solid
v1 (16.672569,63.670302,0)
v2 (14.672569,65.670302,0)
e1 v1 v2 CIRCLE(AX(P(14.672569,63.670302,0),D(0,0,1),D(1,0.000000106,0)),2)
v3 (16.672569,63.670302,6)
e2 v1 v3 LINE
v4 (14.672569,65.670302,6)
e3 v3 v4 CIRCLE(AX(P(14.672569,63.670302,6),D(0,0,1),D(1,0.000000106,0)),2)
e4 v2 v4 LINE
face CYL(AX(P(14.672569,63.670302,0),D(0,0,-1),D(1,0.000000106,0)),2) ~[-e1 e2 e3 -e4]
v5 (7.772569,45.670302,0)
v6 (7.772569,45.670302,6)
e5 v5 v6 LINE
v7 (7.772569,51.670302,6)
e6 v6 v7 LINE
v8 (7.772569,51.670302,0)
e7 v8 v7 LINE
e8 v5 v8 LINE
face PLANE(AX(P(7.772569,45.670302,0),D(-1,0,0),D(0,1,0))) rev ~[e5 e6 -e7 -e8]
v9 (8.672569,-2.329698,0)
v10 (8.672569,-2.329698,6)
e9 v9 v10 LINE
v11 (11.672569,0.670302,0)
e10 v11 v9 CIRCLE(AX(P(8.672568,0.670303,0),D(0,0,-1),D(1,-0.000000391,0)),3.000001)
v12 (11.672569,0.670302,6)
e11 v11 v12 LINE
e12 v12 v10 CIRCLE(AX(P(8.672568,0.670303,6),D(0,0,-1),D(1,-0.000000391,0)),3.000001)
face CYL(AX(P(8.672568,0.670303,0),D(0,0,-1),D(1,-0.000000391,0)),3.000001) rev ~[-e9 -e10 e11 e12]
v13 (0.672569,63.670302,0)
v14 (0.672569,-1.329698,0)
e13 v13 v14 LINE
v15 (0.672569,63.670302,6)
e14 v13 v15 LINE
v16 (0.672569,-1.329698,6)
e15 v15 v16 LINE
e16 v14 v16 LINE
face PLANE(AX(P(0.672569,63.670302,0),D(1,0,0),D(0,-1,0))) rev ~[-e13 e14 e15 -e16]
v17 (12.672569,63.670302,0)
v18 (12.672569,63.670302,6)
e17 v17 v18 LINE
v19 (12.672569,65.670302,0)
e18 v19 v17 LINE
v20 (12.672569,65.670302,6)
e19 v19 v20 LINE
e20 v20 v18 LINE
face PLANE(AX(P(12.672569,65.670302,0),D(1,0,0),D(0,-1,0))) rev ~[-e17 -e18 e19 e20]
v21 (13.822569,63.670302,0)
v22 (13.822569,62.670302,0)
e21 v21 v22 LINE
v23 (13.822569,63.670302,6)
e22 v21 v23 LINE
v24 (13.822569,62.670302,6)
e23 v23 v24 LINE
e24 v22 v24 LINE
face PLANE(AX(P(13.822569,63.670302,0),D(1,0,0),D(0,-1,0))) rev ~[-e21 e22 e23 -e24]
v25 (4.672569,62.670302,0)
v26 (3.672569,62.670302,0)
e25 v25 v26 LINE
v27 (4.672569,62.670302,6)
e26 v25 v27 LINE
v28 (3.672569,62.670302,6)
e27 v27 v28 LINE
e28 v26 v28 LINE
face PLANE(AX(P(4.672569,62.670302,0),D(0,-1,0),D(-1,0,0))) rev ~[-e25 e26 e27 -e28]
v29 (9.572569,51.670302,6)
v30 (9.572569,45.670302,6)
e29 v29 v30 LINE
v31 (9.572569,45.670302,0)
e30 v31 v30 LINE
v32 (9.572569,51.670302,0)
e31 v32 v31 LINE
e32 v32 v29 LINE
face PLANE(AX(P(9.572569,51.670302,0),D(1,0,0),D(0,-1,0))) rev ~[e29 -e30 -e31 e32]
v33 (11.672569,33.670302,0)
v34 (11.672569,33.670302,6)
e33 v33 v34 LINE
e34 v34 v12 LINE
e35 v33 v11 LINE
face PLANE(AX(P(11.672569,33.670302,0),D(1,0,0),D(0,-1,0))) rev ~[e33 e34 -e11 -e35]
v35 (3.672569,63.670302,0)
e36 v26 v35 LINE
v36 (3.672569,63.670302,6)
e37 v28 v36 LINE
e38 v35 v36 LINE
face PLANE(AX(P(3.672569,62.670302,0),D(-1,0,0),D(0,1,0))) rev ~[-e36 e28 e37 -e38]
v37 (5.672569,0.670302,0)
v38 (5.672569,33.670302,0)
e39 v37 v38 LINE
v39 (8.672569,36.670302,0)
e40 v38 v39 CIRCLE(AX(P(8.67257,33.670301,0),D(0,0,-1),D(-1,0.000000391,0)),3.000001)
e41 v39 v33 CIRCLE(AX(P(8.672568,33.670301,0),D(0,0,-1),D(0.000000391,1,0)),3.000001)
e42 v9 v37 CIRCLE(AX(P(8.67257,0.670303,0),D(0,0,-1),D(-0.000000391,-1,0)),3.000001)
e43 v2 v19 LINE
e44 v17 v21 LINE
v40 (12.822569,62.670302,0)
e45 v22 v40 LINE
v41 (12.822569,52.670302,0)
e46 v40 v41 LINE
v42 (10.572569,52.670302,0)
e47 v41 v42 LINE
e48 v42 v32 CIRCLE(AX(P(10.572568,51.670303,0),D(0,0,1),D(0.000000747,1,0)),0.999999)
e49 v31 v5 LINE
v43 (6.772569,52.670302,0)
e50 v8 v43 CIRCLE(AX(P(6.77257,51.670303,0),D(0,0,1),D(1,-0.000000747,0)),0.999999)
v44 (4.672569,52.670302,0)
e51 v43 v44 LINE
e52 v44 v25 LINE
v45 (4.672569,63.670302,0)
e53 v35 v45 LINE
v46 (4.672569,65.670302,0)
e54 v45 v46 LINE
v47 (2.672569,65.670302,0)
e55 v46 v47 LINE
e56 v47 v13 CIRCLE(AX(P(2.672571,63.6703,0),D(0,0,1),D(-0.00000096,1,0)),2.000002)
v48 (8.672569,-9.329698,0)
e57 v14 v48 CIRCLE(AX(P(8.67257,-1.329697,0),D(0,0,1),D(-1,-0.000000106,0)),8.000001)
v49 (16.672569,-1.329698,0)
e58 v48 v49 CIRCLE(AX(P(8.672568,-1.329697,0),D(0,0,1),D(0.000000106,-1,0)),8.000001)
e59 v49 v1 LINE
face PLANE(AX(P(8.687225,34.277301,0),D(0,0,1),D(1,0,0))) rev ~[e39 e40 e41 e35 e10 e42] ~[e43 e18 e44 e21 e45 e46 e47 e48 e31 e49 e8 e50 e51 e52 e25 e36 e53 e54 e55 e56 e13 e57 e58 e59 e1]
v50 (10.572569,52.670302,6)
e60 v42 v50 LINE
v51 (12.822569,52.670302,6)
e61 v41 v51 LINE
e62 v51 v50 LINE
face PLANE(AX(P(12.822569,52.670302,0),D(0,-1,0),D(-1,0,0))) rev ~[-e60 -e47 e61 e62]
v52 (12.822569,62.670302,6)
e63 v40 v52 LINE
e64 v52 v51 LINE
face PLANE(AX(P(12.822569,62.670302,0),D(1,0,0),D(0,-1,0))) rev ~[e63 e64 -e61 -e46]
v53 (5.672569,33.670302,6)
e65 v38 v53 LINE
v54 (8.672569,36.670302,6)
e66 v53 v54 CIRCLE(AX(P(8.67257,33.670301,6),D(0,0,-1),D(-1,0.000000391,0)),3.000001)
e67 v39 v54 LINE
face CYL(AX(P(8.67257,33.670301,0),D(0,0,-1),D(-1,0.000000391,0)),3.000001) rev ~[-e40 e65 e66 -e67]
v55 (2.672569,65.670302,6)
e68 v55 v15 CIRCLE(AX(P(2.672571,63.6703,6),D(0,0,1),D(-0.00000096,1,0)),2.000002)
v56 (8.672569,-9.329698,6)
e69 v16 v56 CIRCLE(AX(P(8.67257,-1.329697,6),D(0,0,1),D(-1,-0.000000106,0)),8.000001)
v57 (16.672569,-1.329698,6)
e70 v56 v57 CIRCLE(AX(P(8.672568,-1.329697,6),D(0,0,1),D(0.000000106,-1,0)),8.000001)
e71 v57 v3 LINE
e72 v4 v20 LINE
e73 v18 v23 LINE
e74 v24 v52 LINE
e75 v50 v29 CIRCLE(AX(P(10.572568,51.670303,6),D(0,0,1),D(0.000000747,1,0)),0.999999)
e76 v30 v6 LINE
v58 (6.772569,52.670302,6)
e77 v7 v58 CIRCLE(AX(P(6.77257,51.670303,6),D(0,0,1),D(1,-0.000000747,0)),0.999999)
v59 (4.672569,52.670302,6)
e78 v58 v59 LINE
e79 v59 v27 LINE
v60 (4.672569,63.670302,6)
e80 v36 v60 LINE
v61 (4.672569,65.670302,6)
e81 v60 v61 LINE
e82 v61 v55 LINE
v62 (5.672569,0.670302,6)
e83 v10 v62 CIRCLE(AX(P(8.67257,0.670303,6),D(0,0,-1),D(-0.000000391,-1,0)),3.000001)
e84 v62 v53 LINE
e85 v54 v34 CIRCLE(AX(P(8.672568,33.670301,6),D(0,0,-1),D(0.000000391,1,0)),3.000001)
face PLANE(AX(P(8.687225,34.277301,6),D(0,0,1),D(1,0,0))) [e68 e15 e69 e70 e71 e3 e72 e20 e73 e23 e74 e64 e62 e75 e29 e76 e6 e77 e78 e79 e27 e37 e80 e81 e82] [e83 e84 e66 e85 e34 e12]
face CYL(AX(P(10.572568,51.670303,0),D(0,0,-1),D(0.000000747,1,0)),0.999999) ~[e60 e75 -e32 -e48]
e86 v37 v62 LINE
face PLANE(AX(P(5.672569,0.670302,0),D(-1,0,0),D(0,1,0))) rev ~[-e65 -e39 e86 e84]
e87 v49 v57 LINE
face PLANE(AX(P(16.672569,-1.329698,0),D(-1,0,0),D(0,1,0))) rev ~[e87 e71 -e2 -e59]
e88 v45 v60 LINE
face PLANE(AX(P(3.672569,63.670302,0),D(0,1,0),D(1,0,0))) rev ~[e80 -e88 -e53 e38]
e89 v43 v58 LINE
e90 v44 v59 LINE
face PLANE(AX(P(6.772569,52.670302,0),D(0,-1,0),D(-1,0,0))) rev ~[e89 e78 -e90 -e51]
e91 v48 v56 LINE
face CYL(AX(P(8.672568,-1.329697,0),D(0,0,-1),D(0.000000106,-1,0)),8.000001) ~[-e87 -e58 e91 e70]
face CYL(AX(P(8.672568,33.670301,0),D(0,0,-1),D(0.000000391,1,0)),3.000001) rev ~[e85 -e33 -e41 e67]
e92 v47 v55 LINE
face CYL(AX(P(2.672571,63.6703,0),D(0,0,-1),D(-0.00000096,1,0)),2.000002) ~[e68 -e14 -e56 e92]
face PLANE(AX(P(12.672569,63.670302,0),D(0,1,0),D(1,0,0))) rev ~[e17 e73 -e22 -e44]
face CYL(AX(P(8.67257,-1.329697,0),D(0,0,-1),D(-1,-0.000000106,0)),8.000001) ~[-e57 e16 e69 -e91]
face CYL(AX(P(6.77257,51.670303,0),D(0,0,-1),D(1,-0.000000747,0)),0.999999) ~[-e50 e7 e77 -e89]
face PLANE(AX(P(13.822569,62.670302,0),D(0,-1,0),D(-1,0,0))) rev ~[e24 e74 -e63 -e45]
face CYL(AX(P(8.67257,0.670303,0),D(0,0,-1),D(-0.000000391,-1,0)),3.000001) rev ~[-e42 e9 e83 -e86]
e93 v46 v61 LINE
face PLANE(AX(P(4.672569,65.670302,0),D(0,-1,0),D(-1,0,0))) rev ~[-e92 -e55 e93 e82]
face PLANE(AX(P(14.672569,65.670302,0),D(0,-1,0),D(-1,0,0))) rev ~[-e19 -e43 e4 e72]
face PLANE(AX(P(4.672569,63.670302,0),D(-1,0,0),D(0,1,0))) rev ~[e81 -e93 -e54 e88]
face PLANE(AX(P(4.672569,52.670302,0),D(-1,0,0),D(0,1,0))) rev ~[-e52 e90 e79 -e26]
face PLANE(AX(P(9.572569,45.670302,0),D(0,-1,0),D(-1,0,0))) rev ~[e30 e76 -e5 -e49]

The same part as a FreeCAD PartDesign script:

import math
import FreeCAD as App
import Part
import Sketcher

V = App.Vector
Q = App.Units.Quantity

doc = App.newDocument("Part")
body = doc.addObject("PartDesign::Body", "Body")

# Sketch on XY plane
sketch1 = doc.addObject("Sketcher::SketchObject", "Sketch")
body.addObject(sketch1)
sketch1.AttachmentSupport = (doc.XY_Plane, [""])
sketch1.MapMode = "FlatFace"
sketch1.addGeometry(Part.ArcOfCircle(Part.Circle(V(2.7, 63.7, 0), V(0, 0, 1), 2), math.radians(90), math.radians(180)), False)
sketch1.addGeometry(Part.LineSegment(V(0.7, 63.7, 0), V(0.7, -1.3, 0)), False)
sketch1.addGeometry(Part.ArcOfCircle(Part.Circle(V(8.7, -1.3, 0), V(0, 0, 1), 8), math.radians(-180), math.radians(-90)), False)
sketch1.addGeometry(Part.ArcOfCircle(Part.Circle(V(8.7, -1.3, 0), V(0, 0, 1), 8), math.radians(-90), math.radians(0)), False)
sketch1.addGeometry(Part.LineSegment(V(16.7, -1.3, 0), V(16.7, 63.7, 0)), False)
sketch1.addGeometry(Part.ArcOfCircle(Part.Circle(V(14.7, 63.7, 0), V(0, 0, 1), 2), math.radians(0), math.radians(90)), False)
sketch1.addGeometry(Part.LineSegment(V(14.7, 65.7, 0), V(12.7, 65.7, 0)), False)
sketch1.addGeometry(Part.LineSegment(V(12.7, 65.7, 0), V(12.7, 63.7, 0)), False)
sketch1.addGeometry(Part.LineSegment(V(12.7, 63.7, 0), V(13.8, 63.7, 0)), False)
sketch1.addGeometry(Part.LineSegment(V(13.8, 63.7, 0), V(13.8, 62.7, 0)), False)
sketch1.addGeometry(Part.LineSegment(V(13.8, 62.7, 0), V(12.8, 62.7, 0)), False)
sketch1.addGeometry(Part.LineSegment(V(12.8, 62.7, 0), V(12.8, 52.7, 0)), False)
sketch1.addGeometry(Part.LineSegment(V(12.8, 52.7, 0), V(10.6, 52.7, 0)), False)
sketch1.addGeometry(Part.ArcOfCircle(Part.Circle(V(10.6, 51.7, 0), V(0, 0, 1), 1), math.radians(90), math.radians(180)), False)
sketch1.addGeometry(Part.LineSegment(V(9.6, 51.7, 0), V(9.6, 45.7, 0)), False)
sketch1.addGeometry(Part.LineSegment(V(9.6, 45.7, 0), V(7.8, 45.7, 0)), False)
sketch1.addGeometry(Part.LineSegment(V(7.8, 45.7, 0), V(7.8, 51.7, 0)), False)
sketch1.addGeometry(Part.ArcOfCircle(Part.Circle(V(6.8, 51.7, 0), V(0, 0, 1), 1), math.radians(0), math.radians(90)), False)
sketch1.addGeometry(Part.LineSegment(V(6.8, 52.7, 0), V(4.7, 52.7, 0)), False)
sketch1.addGeometry(Part.LineSegment(V(4.7, 52.7, 0), V(4.7, 62.7, 0)), False)
sketch1.addGeometry(Part.LineSegment(V(4.7, 62.7, 0), V(3.7, 62.7, 0)), False)
sketch1.addGeometry(Part.LineSegment(V(3.7, 62.7, 0), V(3.7, 63.7, 0)), False)
sketch1.addGeometry(Part.LineSegment(V(3.7, 63.7, 0), V(4.7, 63.7, 0)), False)
sketch1.addGeometry(Part.LineSegment(V(4.7, 63.7, 0), V(4.7, 65.7, 0)), False)
sketch1.addGeometry(Part.LineSegment(V(4.7, 65.7, 0), V(2.7, 65.7, 0)), False)
sketch1.addGeometry(Part.LineSegment(V(11.7, 33.7, 0), V(11.7, 0.7, 0)), False)
sketch1.addGeometry(Part.ArcOfCircle(Part.Circle(V(8.7, 0.7, 0), V(0, 0, 1), 3), math.radians(-90), math.radians(0)), False)
sketch1.addGeometry(Part.ArcOfCircle(Part.Circle(V(8.7, 0.7, 0), V(0, 0, 1), 3), math.radians(-180), math.radians(-90)), False)
sketch1.addGeometry(Part.LineSegment(V(5.7, 0.7, 0), V(5.7, 33.7, 0)), False)
sketch1.addGeometry(Part.ArcOfCircle(Part.Circle(V(8.7, 33.7, 0), V(0, 0, 1), 3), math.radians(90), math.radians(180)), False)
sketch1.addGeometry(Part.ArcOfCircle(Part.Circle(V(8.7, 33.7, 0), V(0, 0, 1), 3), math.radians(0), math.radians(90)), False)
sketch1.addConstraint(Sketcher.Constraint("Tangent", 0, 2, 1, 1))
sketch1.addConstraint(Sketcher.Constraint("Tangent", 1, 2, 2, 1))
sketch1.addConstraint(Sketcher.Constraint("Tangent", 2, 2, 3, 1))
sketch1.addConstraint(Sketcher.Constraint("Tangent", 3, 2, 4, 1))
sketch1.addConstraint(Sketcher.Constraint("Tangent", 4, 2, 5, 1))
sketch1.addConstraint(Sketcher.Constraint("Tangent", 5, 2, 6, 1))
sketch1.addConstraint(Sketcher.Constraint("Coincident", 6, 2, 7, 1))
sketch1.addConstraint(Sketcher.Constraint("Coincident", 7, 2, 8, 1))
sketch1.addConstraint(Sketcher.Constraint("Coincident", 8, 2, 9, 1))
sketch1.addConstraint(Sketcher.Constraint("Coincident", 9, 2, 10, 1))
sketch1.addConstraint(Sketcher.Constraint("Coincident", 10, 2, 11, 1))
sketch1.addConstraint(Sketcher.Constraint("Coincident", 11, 2, 12, 1))
sketch1.addConstraint(Sketcher.Constraint("Tangent", 12, 2, 13, 1))
sketch1.addConstraint(Sketcher.Constraint("Tangent", 13, 2, 14, 1))
sketch1.addConstraint(Sketcher.Constraint("Coincident", 14, 2, 15, 1))
sketch1.addConstraint(Sketcher.Constraint("Coincident", 15, 2, 16, 1))
sketch1.addConstraint(Sketcher.Constraint("Tangent", 16, 2, 17, 1))
sketch1.addConstraint(Sketcher.Constraint("Tangent", 17, 2, 18, 1))
sketch1.addConstraint(Sketcher.Constraint("Coincident", 18, 2, 19, 1))
sketch1.addConstraint(Sketcher.Constraint("Coincident", 19, 2, 20, 1))
sketch1.addConstraint(Sketcher.Constraint("Coincident", 20, 2, 21, 1))
sketch1.addConstraint(Sketcher.Constraint("Coincident", 21, 2, 22, 1))
sketch1.addConstraint(Sketcher.Constraint("Coincident", 22, 2, 23, 1))
sketch1.addConstraint(Sketcher.Constraint("Coincident", 23, 2, 24, 1))
sketch1.addConstraint(Sketcher.Constraint("Tangent", 24, 2, 0, 1))
sketch1.addConstraint(Sketcher.Constraint("Tangent", 25, 2, 26, 2))
sketch1.addConstraint(Sketcher.Constraint("Tangent", 26, 1, 27, 2))
sketch1.addConstraint(Sketcher.Constraint("Tangent", 27, 1, 28, 1))
sketch1.addConstraint(Sketcher.Constraint("Tangent", 28, 2, 29, 2))
sketch1.addConstraint(Sketcher.Constraint("Tangent", 29, 1, 30, 2))
sketch1.addConstraint(Sketcher.Constraint("Tangent", 30, 1, 25, 1))
sketch1.addConstraint(Sketcher.Constraint("Vertical", 1))
sketch1.addConstraint(Sketcher.Constraint("Vertical", 4))
sketch1.addConstraint(Sketcher.Constraint("Horizontal", 6))
sketch1.addConstraint(Sketcher.Constraint("Vertical", 7))
sketch1.addConstraint(Sketcher.Constraint("Horizontal", 8))
sketch1.addConstraint(Sketcher.Constraint("Vertical", 9))
sketch1.addConstraint(Sketcher.Constraint("Horizontal", 10))
sketch1.addConstraint(Sketcher.Constraint("Vertical", 11))
sketch1.addConstraint(Sketcher.Constraint("Horizontal", 12))
sketch1.addConstraint(Sketcher.Constraint("Vertical", 14))
sketch1.addConstraint(Sketcher.Constraint("Horizontal", 15))
sketch1.addConstraint(Sketcher.Constraint("Vertical", 16))
sketch1.addConstraint(Sketcher.Constraint("Horizontal", 18))
sketch1.addConstraint(Sketcher.Constraint("Vertical", 19))
sketch1.addConstraint(Sketcher.Constraint("Horizontal", 20))
sketch1.addConstraint(Sketcher.Constraint("Vertical", 21))
sketch1.addConstraint(Sketcher.Constraint("Horizontal", 22))
sketch1.addConstraint(Sketcher.Constraint("Vertical", 23))
sketch1.addConstraint(Sketcher.Constraint("Horizontal", 24))
sketch1.addConstraint(Sketcher.Constraint("Vertical", 25))
sketch1.addConstraint(Sketcher.Constraint("Vertical", 28))
sketch1.addConstraint(Sketcher.Constraint("Equal", 2, 3))
sketch1.addConstraint(Sketcher.Constraint("Equal", 0, 5))
sketch1.addConstraint(Sketcher.Constraint("Equal", 13, 17))
sketch1.addConstraint(Sketcher.Constraint("Equal", 26, 27))
sketch1.addConstraint(Sketcher.Constraint("Equal", 27, 29))
sketch1.addConstraint(Sketcher.Constraint("Horizontal", 0, 3, 5, 3))
sketch1.addConstraint(Sketcher.Constraint("Horizontal", 13, 3, 17, 3))
sketch1.addConstraint(Sketcher.Constraint("Horizontal", 4, 2, 7, 2))
sketch1.addConstraint(Sketcher.Constraint("Horizontal", 10, 2, 19, 2))
sketch1.addConstraint(Sketcher.Constraint("Horizontal", 8, 2, 21, 2))
sketch1.addConstraint(Sketcher.Constraint("Vertical", 3, 3, 26, 3))
sketch1.addConstraint(Sketcher.Constraint("Vertical", 30, 3, 2, 2))
sketch1.addConstraint(Sketcher.Constraint("Vertical", 19, 2, 22, 2))
sketch1.addConstraint(Sketcher.Constraint("Vertical", 2, 2, 26, 1))
sketch1.addConstraint(Sketcher.Constraint("Vertical", 26, 1, 29, 1))
sketch1.addConstraint(Sketcher.Constraint("Equal", 10, 20))
sketch1.addConstraint(Sketcher.Constraint("Equal", 6, 24))
sketch1.addConstraint(Sketcher.Constraint("Equal", 24, 7))
sketch1.addConstraint(Sketcher.Constraint("Equal", 22, 9))
sketch1.addConstraint(Sketcher.Constraint("Radius", 0, Q("2.000002 mm")))
sketch1.addConstraint(Sketcher.Constraint("Radius", 2, Q("8.000001 mm")))
sketch1.addConstraint(Sketcher.Constraint("Radius", 13, Q("0.999999 mm")))
sketch1.addConstraint(Sketcher.Constraint("Radius", 26, Q("3.000001 mm")))
sketch1.addConstraint(Sketcher.Constraint("DistanceX", 10, 2, 10, 1, Q("1 mm")))
sketch1.addConstraint(Sketcher.Constraint("DistanceY", 1, 2, 1, 1, Q("65 mm")))
sketch1.addConstraint(Sketcher.Constraint("DistanceY", 11, 2, 11, 1, Q("10 mm")))
sketch1.addConstraint(Sketcher.Constraint("DistanceY", 14, 2, 14, 1, Q("6 mm")))
sketch1.addConstraint(Sketcher.Constraint("DistanceY", 25, 2, 25, 1, Q("33 mm")))
sketch1.addConstraint(Sketcher.Constraint("DistanceX", 15, 2, 15, 1, Q("1.8 mm")))
sketch1.addConstraint(Sketcher.Constraint("DistanceX", 18, 2, 18, 1, Q("2.1 mm")))
sketch1.addConstraint(Sketcher.Constraint("DistanceY", 3, 3, 26, 3, Q("2 mm")))
sketch1.addConstraint(Sketcher.Constraint("DistanceX", 8, 1, 8, 2, Q("1.15 mm")))
sketch1.addConstraint(Sketcher.Constraint("DistanceY", -1, 1, 0, 3, Q("63.6703 mm")))
sketch1.addConstraint(Sketcher.Constraint("DistanceX", -1, 1, 0, 3, Q("2.672571 mm")))
pad1 = doc.addObject("PartDesign::Pad", "Pad")
body.addObject(pad1)
pad1.Profile = sketch1
pad1.Length = 6

doc.recompute()
